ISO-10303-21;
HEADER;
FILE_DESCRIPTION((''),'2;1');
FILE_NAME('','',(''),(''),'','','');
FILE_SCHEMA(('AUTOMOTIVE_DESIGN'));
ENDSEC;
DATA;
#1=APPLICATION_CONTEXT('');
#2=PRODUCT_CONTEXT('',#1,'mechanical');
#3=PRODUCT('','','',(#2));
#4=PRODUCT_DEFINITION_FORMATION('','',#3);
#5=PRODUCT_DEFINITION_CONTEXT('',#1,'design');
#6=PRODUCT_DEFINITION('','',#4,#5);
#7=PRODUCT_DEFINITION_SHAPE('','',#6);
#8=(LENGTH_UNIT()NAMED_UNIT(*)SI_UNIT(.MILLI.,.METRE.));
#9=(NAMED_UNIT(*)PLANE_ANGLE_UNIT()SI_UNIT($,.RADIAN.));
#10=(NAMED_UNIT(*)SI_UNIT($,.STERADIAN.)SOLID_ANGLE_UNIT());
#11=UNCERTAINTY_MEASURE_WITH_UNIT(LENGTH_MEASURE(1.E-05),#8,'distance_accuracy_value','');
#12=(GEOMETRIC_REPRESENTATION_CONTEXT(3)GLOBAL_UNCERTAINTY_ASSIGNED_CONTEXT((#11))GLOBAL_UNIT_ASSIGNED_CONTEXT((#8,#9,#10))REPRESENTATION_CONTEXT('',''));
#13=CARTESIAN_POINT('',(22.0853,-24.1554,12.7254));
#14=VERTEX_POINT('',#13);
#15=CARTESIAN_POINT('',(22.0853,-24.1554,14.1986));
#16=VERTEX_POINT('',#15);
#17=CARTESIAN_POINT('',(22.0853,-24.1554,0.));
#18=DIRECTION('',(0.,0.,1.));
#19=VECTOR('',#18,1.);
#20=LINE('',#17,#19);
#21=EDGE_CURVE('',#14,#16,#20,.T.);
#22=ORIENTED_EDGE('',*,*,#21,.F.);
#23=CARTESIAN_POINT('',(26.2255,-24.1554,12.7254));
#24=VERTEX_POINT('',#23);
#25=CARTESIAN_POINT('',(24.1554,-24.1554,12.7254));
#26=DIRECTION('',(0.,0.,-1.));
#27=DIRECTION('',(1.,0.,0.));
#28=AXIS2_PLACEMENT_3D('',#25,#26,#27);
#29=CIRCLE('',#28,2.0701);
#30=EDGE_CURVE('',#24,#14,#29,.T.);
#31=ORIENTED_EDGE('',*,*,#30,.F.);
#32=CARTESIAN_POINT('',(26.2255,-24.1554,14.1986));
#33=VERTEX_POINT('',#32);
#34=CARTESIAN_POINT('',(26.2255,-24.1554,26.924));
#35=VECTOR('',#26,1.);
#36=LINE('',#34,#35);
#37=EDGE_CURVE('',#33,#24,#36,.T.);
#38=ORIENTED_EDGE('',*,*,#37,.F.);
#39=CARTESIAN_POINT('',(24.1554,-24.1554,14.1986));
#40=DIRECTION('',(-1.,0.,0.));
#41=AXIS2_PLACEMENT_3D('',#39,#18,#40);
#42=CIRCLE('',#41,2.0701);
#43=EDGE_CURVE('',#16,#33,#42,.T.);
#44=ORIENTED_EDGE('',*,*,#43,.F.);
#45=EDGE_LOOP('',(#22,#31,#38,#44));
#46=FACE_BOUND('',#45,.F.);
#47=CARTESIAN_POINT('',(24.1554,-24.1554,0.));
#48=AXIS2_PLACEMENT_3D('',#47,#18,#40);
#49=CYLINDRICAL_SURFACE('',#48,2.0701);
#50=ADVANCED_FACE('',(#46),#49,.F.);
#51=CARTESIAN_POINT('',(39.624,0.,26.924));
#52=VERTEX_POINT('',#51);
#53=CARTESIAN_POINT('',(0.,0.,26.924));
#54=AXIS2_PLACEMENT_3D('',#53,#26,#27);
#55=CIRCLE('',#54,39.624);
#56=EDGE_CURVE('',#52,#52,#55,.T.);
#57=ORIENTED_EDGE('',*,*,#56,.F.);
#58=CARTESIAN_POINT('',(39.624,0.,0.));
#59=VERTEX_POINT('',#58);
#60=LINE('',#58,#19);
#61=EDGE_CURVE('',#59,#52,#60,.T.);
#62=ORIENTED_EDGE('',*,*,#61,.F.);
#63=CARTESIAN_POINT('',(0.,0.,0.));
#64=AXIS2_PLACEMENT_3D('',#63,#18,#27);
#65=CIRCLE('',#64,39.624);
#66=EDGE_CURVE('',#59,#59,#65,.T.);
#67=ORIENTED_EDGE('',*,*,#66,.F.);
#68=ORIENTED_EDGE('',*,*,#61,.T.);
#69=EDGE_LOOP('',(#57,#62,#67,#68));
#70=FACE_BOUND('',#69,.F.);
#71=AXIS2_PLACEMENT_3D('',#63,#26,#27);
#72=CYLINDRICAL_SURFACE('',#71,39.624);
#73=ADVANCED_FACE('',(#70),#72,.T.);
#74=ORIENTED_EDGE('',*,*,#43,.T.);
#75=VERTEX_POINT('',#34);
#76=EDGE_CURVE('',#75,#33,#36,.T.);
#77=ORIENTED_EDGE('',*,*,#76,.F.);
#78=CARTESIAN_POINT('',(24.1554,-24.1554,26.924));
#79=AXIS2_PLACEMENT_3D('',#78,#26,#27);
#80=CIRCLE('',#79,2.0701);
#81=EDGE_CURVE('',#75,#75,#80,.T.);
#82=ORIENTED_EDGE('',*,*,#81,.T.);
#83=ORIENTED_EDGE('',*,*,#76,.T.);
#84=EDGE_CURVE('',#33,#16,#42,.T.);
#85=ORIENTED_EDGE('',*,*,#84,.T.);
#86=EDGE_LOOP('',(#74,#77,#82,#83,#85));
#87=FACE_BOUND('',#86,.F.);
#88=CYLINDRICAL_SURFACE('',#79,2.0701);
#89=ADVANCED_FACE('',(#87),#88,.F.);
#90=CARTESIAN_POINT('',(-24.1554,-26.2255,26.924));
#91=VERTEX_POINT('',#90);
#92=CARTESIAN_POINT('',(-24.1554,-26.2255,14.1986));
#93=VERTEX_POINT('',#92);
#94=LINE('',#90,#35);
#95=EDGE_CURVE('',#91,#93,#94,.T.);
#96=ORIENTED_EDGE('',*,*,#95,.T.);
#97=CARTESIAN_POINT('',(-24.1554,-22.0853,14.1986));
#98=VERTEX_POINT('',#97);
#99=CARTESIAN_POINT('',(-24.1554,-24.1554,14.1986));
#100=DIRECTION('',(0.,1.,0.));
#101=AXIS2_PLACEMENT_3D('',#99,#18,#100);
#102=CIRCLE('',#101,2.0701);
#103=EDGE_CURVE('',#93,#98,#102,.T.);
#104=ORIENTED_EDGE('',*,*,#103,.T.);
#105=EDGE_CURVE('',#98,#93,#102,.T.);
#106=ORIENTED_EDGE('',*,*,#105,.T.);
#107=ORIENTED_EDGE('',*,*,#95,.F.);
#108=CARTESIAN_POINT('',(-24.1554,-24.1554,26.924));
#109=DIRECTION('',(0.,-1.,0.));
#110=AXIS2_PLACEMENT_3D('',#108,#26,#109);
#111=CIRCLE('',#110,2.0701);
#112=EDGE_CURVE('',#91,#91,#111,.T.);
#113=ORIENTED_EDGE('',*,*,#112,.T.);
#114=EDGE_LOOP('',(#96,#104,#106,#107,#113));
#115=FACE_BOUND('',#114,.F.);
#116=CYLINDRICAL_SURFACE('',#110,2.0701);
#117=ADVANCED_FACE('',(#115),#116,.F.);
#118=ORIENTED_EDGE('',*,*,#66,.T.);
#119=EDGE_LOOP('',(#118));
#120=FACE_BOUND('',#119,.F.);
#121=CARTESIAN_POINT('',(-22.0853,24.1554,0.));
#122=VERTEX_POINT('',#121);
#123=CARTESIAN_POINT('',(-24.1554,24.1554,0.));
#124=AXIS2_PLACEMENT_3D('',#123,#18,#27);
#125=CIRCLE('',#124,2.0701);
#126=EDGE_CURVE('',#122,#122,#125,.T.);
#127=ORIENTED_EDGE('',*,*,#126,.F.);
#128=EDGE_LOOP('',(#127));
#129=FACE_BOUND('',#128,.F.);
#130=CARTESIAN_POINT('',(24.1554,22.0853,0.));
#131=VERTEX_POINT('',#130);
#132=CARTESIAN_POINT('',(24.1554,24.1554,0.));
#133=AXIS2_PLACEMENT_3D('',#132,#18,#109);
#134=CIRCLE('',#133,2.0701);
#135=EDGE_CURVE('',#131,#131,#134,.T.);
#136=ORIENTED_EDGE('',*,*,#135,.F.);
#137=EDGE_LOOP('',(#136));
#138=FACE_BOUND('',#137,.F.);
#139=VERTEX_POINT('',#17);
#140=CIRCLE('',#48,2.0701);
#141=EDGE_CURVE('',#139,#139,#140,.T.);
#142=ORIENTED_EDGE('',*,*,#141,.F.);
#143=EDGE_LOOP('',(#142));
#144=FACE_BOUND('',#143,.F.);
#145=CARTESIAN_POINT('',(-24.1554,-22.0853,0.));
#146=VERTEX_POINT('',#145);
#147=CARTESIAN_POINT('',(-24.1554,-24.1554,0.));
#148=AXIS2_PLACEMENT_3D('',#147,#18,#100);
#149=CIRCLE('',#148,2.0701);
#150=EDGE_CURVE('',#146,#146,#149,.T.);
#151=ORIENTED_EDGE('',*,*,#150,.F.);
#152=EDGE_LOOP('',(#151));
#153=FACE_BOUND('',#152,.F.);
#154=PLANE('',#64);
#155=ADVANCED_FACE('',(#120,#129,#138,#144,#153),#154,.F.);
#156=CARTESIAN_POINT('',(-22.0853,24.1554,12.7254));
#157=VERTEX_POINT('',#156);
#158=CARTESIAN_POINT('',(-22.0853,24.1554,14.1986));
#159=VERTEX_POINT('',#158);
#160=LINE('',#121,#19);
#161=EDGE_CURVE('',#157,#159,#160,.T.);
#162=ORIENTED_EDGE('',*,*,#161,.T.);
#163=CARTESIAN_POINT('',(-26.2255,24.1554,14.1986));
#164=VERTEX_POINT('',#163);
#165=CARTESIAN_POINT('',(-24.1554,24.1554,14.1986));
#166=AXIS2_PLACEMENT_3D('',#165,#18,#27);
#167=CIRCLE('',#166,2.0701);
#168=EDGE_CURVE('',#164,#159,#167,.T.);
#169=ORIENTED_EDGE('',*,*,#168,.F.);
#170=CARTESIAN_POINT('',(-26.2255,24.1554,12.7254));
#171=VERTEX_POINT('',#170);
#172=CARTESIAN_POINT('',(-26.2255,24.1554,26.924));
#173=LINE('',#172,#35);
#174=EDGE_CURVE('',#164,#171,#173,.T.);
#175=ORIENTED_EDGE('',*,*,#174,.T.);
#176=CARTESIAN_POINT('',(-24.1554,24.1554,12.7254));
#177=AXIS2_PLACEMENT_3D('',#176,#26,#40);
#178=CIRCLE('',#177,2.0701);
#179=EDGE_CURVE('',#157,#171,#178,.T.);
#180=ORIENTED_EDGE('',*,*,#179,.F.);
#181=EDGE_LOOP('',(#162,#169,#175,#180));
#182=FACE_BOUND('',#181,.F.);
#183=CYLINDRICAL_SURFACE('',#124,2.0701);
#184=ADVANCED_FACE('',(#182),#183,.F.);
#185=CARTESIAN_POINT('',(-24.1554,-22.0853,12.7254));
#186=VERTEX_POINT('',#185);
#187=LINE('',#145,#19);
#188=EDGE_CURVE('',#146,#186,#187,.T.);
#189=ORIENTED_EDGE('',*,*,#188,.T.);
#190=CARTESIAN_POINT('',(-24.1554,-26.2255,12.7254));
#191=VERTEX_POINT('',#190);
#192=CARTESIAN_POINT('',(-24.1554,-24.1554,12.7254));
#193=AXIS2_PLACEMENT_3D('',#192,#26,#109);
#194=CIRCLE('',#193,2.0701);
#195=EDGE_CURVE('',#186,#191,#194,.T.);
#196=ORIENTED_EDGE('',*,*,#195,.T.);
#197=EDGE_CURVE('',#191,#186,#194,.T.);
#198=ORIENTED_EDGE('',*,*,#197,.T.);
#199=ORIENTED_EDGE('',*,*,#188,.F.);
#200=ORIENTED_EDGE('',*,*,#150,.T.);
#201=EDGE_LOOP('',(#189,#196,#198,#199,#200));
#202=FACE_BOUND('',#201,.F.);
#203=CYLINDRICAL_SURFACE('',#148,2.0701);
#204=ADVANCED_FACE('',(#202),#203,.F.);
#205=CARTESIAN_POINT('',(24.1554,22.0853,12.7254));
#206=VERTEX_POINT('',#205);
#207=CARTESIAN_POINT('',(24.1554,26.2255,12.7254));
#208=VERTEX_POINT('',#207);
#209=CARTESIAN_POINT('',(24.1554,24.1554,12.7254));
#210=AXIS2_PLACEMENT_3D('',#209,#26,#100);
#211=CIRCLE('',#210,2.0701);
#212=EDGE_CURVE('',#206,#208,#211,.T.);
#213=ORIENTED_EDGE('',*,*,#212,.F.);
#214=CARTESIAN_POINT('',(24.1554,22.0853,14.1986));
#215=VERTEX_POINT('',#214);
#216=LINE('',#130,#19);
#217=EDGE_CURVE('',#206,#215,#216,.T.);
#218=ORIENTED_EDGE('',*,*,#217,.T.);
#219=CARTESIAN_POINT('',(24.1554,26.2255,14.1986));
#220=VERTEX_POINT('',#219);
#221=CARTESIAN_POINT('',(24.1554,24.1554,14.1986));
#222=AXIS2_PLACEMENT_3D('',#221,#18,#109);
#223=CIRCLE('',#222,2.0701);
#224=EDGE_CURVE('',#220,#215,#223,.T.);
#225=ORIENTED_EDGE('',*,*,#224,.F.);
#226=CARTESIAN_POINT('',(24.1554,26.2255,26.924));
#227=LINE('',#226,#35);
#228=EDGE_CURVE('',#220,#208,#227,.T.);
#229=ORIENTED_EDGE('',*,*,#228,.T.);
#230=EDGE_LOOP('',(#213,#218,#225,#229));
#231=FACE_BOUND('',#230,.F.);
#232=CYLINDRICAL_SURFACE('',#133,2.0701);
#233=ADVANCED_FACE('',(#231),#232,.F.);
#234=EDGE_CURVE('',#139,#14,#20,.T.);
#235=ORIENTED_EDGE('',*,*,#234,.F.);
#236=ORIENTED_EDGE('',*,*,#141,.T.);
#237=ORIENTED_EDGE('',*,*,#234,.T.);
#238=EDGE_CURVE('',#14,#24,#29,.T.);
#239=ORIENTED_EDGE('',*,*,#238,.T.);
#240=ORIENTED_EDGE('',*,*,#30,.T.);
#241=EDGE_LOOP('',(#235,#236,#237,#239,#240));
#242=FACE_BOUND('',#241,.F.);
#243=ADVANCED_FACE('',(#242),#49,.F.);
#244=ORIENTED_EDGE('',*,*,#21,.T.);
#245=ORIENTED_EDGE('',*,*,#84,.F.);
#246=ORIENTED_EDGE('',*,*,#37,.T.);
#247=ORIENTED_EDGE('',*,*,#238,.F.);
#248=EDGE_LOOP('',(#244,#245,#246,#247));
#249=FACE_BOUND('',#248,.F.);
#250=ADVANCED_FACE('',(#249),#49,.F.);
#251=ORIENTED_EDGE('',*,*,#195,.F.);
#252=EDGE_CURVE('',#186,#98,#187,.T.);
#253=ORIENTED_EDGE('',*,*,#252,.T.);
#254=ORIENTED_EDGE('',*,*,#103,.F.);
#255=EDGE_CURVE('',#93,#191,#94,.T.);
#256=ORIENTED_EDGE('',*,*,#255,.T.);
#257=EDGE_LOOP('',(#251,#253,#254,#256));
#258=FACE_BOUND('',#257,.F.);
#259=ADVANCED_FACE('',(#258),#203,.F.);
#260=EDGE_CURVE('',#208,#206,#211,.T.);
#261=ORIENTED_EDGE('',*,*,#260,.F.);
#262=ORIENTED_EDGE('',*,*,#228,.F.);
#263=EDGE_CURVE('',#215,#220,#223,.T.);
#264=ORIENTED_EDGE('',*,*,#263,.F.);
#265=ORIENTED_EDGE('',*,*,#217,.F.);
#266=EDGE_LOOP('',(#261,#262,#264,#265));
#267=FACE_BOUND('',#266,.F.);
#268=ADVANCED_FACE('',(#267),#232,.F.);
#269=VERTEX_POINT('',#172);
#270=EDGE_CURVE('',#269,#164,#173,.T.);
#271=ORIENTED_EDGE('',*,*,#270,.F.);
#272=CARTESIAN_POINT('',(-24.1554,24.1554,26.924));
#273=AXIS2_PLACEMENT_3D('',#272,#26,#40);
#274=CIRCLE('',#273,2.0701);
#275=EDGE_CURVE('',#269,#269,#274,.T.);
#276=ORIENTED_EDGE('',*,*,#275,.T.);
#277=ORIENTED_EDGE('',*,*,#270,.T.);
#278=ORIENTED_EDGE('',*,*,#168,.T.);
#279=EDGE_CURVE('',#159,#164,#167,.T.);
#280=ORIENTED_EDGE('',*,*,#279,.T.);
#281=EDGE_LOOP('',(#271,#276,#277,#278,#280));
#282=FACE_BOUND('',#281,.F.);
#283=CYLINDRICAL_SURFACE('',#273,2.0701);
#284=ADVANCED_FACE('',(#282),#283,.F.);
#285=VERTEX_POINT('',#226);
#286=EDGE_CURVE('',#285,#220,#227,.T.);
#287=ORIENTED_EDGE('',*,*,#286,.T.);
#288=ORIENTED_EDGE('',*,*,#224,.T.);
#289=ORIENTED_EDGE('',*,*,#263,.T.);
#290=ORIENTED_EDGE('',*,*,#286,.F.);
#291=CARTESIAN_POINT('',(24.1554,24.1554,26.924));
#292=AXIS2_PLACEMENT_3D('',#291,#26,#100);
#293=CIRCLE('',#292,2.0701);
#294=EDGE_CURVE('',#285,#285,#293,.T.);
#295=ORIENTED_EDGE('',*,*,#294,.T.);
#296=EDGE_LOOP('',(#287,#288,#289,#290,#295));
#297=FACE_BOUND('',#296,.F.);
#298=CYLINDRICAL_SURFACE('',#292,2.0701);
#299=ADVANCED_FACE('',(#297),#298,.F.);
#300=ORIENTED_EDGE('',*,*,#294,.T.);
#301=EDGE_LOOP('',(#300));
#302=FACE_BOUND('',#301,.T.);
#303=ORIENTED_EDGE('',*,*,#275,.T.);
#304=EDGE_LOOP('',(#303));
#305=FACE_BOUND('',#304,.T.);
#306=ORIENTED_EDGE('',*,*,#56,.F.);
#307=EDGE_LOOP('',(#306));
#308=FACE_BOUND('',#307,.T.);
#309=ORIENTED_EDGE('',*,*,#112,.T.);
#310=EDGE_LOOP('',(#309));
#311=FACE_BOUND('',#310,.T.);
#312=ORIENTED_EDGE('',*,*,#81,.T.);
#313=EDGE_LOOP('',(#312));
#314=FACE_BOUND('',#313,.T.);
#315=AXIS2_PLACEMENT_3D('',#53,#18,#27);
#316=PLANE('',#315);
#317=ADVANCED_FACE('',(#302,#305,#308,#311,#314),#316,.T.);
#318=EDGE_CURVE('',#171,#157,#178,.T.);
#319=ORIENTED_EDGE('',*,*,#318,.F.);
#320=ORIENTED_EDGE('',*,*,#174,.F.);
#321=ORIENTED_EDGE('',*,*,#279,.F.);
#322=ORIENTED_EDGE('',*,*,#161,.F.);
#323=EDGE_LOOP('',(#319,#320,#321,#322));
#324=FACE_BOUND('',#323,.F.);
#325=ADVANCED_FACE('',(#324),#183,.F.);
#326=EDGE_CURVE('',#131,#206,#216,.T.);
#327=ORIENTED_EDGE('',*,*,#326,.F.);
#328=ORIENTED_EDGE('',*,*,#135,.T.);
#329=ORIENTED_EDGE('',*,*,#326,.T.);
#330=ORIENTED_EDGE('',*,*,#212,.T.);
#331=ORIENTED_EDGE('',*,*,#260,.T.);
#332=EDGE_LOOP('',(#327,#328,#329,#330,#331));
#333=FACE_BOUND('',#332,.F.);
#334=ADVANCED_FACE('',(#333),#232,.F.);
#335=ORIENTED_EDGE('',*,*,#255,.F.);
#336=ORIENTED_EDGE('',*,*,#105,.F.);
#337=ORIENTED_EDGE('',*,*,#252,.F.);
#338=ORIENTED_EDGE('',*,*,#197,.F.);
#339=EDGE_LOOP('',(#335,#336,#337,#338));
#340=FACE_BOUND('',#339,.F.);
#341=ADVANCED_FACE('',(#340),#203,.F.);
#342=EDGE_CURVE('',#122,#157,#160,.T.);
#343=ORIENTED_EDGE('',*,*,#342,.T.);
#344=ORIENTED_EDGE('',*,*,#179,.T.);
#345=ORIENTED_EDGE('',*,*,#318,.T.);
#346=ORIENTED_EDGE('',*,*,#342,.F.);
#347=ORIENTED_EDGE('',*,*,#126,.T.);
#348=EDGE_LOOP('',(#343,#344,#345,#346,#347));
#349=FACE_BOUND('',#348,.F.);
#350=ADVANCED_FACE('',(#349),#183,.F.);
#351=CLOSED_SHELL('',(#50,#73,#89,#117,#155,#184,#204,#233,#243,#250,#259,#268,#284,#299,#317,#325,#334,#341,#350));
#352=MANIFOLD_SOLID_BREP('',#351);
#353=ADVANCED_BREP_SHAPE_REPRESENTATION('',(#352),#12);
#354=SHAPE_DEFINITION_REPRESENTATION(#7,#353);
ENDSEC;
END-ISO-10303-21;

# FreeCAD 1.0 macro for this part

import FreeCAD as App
import Part
import Sketcher
from FreeCAD import Vector
Q = App.Units.Quantity

doc = App.newDocument("Part")
body = doc.addObject("PartDesign::Body", "Body")

# Sketch on XY plane
sketch1 = body.newObject("Sketcher::SketchObject", "Sketch")
sketch1.AttachmentSupport = (doc.getObject("XY_Plane"), [""])
sketch1.MapMode = "FlatFace"
sketch1.addGeometry(Part.Circle(Vector(0, 0, 0), Vector(0, 0, 1), 40), False)
sketch1.addConstraint([
    Sketcher.Constraint("Coincident", 0, 3, -1, 1),
    Sketcher.Constraint("Diameter", 0, Q("3.12 in")),
])
pad1 = body.newObject("PartDesign::Pad", "Pad")
pad1.Profile = sketch1
pad1.Length = Q("1.06 in")

# Sketch on XY plane
sketch2 = body.newObject("Sketcher::SketchObject", "Sketch001")
sketch2.AttachmentSupport = (doc.getObject("XY_Plane"), [""])
sketch2.MapMode = "FlatFace"
sketch2.addGeometry(Part.Circle(Vector(-24.2, -24.2, 0), Vector(0, 0, 1), 2.1), False)
sketch2.addConstraint([
    Sketcher.Constraint("Diameter", 0, Q("0.163 in")),
    Sketcher.Constraint("DistanceX", 0, 3, -1, 1, Q("0.951 in")),
    Sketcher.Constraint("DistanceY", 0, 3, -1, 1, Q("0.951 in")),
])
doc.recompute()
hole = body.newObject("PartDesign::Hole", "Hole")
hole.Profile = sketch2
hole.ThreadType = "None"
hole.Diameter = Q("0.163 in")
hole.DepthType = "Dimension"
hole.Depth = Q("0.559 in")
hole.DrillPoint = "Angled"
hole.DrillPointAngle = 118
hole.Reversed = True

# Sketch on XY plane
sketch3 = body.newObject("Sketcher::SketchObject", "Sketch002")
sketch3.AttachmentSupport = (doc.getObject("XY_Plane"), [""])
sketch3.MapMode = "FlatFace"
sketch3.AttachmentOffset = App.Placement(Vector(0, 0, 1.06 * 25.4), App.Rotation())
sketch3.addGeometry(Part.Circle(Vector(-24.2, -24.2, 0), Vector(0, 0, 1), 2.1), False)
sketch3.addConstraint([
    Sketcher.Constraint("Diameter", 0, Q("0.163 in")),
    Sketcher.Constraint("DistanceX", 0, 3, -1, 1, Q("0.951 in")),
    Sketcher.Constraint("DistanceY", 0, 3, -1, 1, Q("0.951 in")),
])
doc.recompute()
hole2 = body.newObject("PartDesign::Hole", "Hole001")
hole2.Profile = sketch3
hole2.ThreadType = "None"
hole2.Diameter = Q("0.163 in")
hole2.DepthType = "Dimension"
hole2.Depth = Q("0.559 in")
hole2.DrillPoint = "Angled"
hole2.DrillPointAngle = 118
doc.recompute()

polarpattern = body.newObject("PartDesign::PolarPattern", "PolarPattern")
polarpattern.Originals = [hole, hole2]
polarpattern.Axis = (doc.getObject("Z_Axis"), [""])
polarpattern.Angle = 360
polarpattern.Occurrences = 4
body.Tip = polarpattern

doc.recompute()
